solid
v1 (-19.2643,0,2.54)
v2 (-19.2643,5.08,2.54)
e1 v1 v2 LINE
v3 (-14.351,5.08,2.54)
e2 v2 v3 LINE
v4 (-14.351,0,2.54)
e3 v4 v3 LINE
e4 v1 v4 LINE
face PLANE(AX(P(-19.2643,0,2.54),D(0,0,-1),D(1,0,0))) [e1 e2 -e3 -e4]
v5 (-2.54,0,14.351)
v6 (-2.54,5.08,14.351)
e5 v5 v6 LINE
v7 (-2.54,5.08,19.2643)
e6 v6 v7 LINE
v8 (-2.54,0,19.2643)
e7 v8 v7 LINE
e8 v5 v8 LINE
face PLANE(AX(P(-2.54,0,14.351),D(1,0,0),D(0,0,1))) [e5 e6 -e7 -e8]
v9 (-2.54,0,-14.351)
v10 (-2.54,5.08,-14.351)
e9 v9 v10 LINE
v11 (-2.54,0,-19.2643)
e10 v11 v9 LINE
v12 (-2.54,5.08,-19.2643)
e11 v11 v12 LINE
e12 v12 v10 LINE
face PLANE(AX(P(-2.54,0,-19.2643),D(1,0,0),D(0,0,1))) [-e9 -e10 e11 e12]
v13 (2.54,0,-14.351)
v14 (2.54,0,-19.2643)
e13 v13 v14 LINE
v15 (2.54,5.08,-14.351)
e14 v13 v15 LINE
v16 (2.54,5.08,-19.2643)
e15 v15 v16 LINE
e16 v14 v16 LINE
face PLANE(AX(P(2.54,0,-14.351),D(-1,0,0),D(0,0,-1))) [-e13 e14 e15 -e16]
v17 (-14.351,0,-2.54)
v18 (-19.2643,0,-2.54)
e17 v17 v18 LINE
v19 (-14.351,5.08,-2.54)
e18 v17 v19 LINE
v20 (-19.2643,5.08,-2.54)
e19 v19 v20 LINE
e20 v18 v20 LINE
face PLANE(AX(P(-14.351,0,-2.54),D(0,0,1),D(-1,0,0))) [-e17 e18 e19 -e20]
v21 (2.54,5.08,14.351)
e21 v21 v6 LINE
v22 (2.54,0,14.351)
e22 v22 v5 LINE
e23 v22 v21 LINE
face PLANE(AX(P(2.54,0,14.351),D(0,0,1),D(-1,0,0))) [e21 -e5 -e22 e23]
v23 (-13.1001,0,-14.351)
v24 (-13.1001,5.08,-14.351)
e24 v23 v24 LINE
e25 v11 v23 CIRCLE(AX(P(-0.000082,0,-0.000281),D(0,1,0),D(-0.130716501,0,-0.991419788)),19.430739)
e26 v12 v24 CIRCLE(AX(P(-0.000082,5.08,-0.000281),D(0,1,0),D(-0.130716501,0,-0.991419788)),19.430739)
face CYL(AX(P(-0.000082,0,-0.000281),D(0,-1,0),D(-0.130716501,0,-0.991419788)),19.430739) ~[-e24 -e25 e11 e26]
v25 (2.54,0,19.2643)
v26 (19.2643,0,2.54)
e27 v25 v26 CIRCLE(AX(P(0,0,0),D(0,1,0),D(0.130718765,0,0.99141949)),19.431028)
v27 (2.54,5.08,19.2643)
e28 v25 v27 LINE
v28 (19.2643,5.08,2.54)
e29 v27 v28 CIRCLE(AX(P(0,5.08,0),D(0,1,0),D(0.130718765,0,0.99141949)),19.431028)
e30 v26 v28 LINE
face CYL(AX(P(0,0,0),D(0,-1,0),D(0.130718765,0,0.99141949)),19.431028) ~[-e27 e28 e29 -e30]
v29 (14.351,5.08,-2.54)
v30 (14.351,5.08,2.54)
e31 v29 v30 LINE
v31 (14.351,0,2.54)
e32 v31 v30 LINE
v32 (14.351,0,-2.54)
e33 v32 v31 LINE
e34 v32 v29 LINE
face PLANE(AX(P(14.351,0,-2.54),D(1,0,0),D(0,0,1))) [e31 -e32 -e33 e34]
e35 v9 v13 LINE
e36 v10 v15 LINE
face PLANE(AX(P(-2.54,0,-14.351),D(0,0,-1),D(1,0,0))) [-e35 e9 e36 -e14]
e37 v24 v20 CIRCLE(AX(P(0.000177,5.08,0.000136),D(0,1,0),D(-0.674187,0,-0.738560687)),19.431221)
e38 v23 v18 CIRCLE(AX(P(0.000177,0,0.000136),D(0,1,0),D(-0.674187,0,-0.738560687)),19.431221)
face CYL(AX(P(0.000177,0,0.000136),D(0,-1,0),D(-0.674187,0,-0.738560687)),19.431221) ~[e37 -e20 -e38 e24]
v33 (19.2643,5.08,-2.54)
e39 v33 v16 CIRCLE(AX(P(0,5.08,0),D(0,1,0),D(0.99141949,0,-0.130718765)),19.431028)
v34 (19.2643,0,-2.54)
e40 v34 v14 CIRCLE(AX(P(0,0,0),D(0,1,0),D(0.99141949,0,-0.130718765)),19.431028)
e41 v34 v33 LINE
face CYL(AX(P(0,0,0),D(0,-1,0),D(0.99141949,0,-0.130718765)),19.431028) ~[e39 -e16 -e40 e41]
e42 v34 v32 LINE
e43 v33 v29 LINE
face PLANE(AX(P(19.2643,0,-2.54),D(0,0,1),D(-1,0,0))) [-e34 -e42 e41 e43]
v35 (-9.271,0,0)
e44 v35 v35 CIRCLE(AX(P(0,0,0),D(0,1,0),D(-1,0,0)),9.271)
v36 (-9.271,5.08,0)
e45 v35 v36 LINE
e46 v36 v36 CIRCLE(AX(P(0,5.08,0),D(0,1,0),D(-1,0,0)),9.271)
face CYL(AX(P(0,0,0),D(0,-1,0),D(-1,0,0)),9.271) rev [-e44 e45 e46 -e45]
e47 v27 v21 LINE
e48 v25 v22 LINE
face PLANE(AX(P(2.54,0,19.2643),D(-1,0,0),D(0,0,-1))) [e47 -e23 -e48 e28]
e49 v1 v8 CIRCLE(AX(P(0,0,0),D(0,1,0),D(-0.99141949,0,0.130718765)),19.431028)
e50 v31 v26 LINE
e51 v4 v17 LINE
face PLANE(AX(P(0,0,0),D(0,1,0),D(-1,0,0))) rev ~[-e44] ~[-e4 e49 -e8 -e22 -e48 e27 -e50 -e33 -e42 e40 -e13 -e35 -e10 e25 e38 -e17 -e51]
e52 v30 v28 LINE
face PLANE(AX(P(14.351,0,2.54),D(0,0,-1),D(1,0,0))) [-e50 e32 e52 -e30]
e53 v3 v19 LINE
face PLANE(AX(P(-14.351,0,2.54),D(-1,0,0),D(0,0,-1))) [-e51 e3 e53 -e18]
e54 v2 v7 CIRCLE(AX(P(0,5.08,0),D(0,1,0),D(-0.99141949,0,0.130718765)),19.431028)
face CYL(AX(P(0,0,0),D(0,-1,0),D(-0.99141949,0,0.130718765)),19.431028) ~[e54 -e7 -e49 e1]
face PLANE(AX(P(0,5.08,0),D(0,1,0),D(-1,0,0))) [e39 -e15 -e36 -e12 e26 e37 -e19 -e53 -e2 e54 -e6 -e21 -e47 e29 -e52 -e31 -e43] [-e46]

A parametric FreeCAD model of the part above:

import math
import FreeCAD as App
import Part
import Sketcher

V = App.Vector
Q = App.Units.Quantity

doc = App.newDocument("Part")
body = doc.addObject("PartDesign::Body", "Body")

# Sketch on XZ plane
sketch1 = body.newObject("Sketcher::SketchObject", "Sketch")
sketch1.AttachmentSupport = (doc.getObject("XZ_Plane"), [""])
sketch1.MapMode = "FlatFace"
sketch1.addGeometry(Part.ArcOfCircle(Part.Circle(V(0, 0, 0), V(0, 0, 1), 19.4), math.radians(-172), math.radians(-132)), False)
sketch1.addGeometry(Part.LineSegment(V(-19.3, -2.5, 0), V(-14.4, -2.5, 0)), False)
sketch1.addGeometry(Part.LineSegment(V(-14.4, -2.5, 0), V(-14.4, 2.5, 0)), False)
sketch1.addGeometry(Part.LineSegment(V(-14.4, 2.5, 0), V(-19.3, 2.5, 0)), False)
sketch1.addGeometry(Part.ArcOfCircle(Part.Circle(V(0, 0, 0), V(0, 0, 1), 19.4), math.radians(98), math.radians(172)), False)
sketch1.addGeometry(Part.LineSegment(V(-2.5, 19.3, 0), V(-2.5, 14.4, 0)), False)
sketch1.addGeometry(Part.LineSegment(V(-2.5, 14.4, 0), V(2.5, 14.4, 0)), False)
sketch1.addGeometry(Part.LineSegment(V(2.5, 14.4, 0), V(2.5, 19.3, 0)), False)
sketch1.addGeometry(Part.ArcOfCircle(Part.Circle(V(0, 0, 0), V(0, 0, 1), 19.4), math.radians(8), math.radians(82)), False)
sketch1.addGeometry(Part.LineSegment(V(19.3, 2.5, 0), V(14.4, 2.5, 0)), False)
sketch1.addGeometry(Part.LineSegment(V(14.4, 2.5, 0), V(14.4, -2.5, 0)), False)
sketch1.addGeometry(Part.LineSegment(V(14.4, -2.5, 0), V(19.3, -2.5, 0)), False)
sketch1.addGeometry(Part.ArcOfCircle(Part.Circle(V(0, 0, 0), V(0, 0, 1), 19.4), math.radians(-82), math.radians(-8)), False)
sketch1.addGeometry(Part.LineSegment(V(2.5, -19.3, 0), V(2.5, -14.4, 0)), False)
sketch1.addGeometry(Part.LineSegment(V(2.5, -14.4, 0), V(-2.5, -14.4, 0)), False)
sketch1.addGeometry(Part.LineSegment(V(-2.5, -14.4, 0), V(-2.5, -19.3, 0)), False)
sketch1.addGeometry(Part.ArcOfCircle(Part.Circle(V(0, 0, 0), V(0, 0, 1), 19.4), math.radians(-132), math.radians(-98)), False)
sketch1.addGeometry(Part.Circle(V(0, 0, 0), V(0, 0, 1), 9.3), False)
sketch1.addConstraint(Sketcher.Constraint("Coincident", 0, 1, 1, 1))
sketch1.addConstraint(Sketcher.Constraint("Coincident", 1, 2, 2, 1))
sketch1.addConstraint(Sketcher.Constraint("Coincident", 2, 2, 3, 1))
sketch1.addConstraint(Sketcher.Constraint("Coincident", 3, 2, 4, 2))
sketch1.addConstraint(Sketcher.Constraint("Coincident", 4, 1, 5, 1))
sketch1.addConstraint(Sketcher.Constraint("Coincident", 5, 2, 6, 1))
sketch1.addConstraint(Sketcher.Constraint("Coincident", 6, 2, 7, 1))
sketch1.addConstraint(Sketcher.Constraint("Coincident", 7, 2, 8, 2))
sketch1.addConstraint(Sketcher.Constraint("Coincident", 8, 1, 9, 1))
sketch1.addConstraint(Sketcher.Constraint("Coincident", 9, 2, 10, 1))
sketch1.addConstraint(Sketcher.Constraint("Coincident", 10, 2, 11, 1))
sketch1.addConstraint(Sketcher.Constraint("Coincident", 11, 2, 12, 2))
sketch1.addConstraint(Sketcher.Constraint("Coincident", 12, 1, 13, 1))
sketch1.addConstraint(Sketcher.Constraint("Coincident", 13, 2, 14, 1))
sketch1.addConstraint(Sketcher.Constraint("Coincident", 14, 2, 15, 1))
sketch1.addConstraint(Sketcher.Constraint("Coincident", 15, 2, 16, 2))
sketch1.addConstraint(Sketcher.Constraint("Tangent", 16, 1, 0, 2))
sketch1.addConstraint(Sketcher.Constraint("Horizontal", 1))
sketch1.addConstraint(Sketcher.Constraint("Vertical", 2))
sketch1.addConstraint(Sketcher.Constraint("Horizontal", 3))
sketch1.addConstraint(Sketcher.Constraint("Vertical", 5))
sketch1.addConstraint(Sketcher.Constraint("Horizontal", 6))
sketch1.addConstraint(Sketcher.Constraint("Vertical", 7))
sketch1.addConstraint(Sketcher.Constraint("Horizontal", 9))
sketch1.addConstraint(Sketcher.Constraint("Vertical", 10))
sketch1.addConstraint(Sketcher.Constraint("Horizontal", 11))
sketch1.addConstraint(Sketcher.Constraint("Vertical", 13))
sketch1.addConstraint(Sketcher.Constraint("Horizontal", 14))
sketch1.addConstraint(Sketcher.Constraint("Vertical", 15))
sketch1.addConstraint(Sketcher.Constraint("Coincident", 0, 3, -1, 1))
sketch1.addConstraint(Sketcher.Constraint("Coincident", 4, 3, -1, 1))
sketch1.addConstraint(Sketcher.Constraint("Coincident", 8, 3, -1, 1))
sketch1.addConstraint(Sketcher.Constraint("Coincident", 12, 3, -1, 1))
sketch1.addConstraint(Sketcher.Constraint("Coincident", 17, 3, -1, 1))
sketch1.addConstraint(Sketcher.Constraint("Equal", 0, 4))
sketch1.addConstraint(Sketcher.Constraint("Equal", 4, 8))
sketch1.addConstraint(Sketcher.Constraint("Equal", 8, 12))
sketch1.addConstraint(Sketcher.Constraint("Equal", 12, 16))
sketch1.addConstraint(Sketcher.Constraint("Symmetric", 1, 2, 9, 2, -1, 1))
sketch1.addConstraint(Sketcher.Constraint("Symmetric", 5, 2, 13, 2, -1, 1))
sketch1.addConstraint(Sketcher.Constraint("Horizontal", 4, 1, 7, 2))
sketch1.addConstraint(Sketcher.Constraint("Horizontal", 3, 2, 8, 1))
sketch1.addConstraint(Sketcher.Constraint("Horizontal", 1, 2, 10, 2))
sketch1.addConstraint(Sketcher.Constraint("Horizontal", 12, 1, 15, 2))
sketch1.addConstraint(Sketcher.Constraint("Horizontal", 14, 2, 16, 1))
sketch1.addConstraint(Sketcher.Constraint("Equal", 14, 2))
sketch1.addConstraint(Sketcher.Constraint("Equal", 11, 5))
sketch1.addConstraint(Sketcher.Constraint("Diameter", 17, Q("0.73 in")))
sketch1.addConstraint(Sketcher.Constraint("DistanceX", 6, 1, 6, 2, Q("0.2 in")))
sketch1.addConstraint(Sketcher.Constraint("Radius", 0, Q("0.765 in")))
sketch1.addConstraint(Sketcher.Constraint("DistanceX", 1, 2, -1, 1, Q("0.565 in")))
pad1 = body.newObject("PartDesign::Pad", "Pad")
pad1.Profile = sketch1
pad1.Length = Q("0.2 in")
pad1.Reversed = True

doc.recompute()
